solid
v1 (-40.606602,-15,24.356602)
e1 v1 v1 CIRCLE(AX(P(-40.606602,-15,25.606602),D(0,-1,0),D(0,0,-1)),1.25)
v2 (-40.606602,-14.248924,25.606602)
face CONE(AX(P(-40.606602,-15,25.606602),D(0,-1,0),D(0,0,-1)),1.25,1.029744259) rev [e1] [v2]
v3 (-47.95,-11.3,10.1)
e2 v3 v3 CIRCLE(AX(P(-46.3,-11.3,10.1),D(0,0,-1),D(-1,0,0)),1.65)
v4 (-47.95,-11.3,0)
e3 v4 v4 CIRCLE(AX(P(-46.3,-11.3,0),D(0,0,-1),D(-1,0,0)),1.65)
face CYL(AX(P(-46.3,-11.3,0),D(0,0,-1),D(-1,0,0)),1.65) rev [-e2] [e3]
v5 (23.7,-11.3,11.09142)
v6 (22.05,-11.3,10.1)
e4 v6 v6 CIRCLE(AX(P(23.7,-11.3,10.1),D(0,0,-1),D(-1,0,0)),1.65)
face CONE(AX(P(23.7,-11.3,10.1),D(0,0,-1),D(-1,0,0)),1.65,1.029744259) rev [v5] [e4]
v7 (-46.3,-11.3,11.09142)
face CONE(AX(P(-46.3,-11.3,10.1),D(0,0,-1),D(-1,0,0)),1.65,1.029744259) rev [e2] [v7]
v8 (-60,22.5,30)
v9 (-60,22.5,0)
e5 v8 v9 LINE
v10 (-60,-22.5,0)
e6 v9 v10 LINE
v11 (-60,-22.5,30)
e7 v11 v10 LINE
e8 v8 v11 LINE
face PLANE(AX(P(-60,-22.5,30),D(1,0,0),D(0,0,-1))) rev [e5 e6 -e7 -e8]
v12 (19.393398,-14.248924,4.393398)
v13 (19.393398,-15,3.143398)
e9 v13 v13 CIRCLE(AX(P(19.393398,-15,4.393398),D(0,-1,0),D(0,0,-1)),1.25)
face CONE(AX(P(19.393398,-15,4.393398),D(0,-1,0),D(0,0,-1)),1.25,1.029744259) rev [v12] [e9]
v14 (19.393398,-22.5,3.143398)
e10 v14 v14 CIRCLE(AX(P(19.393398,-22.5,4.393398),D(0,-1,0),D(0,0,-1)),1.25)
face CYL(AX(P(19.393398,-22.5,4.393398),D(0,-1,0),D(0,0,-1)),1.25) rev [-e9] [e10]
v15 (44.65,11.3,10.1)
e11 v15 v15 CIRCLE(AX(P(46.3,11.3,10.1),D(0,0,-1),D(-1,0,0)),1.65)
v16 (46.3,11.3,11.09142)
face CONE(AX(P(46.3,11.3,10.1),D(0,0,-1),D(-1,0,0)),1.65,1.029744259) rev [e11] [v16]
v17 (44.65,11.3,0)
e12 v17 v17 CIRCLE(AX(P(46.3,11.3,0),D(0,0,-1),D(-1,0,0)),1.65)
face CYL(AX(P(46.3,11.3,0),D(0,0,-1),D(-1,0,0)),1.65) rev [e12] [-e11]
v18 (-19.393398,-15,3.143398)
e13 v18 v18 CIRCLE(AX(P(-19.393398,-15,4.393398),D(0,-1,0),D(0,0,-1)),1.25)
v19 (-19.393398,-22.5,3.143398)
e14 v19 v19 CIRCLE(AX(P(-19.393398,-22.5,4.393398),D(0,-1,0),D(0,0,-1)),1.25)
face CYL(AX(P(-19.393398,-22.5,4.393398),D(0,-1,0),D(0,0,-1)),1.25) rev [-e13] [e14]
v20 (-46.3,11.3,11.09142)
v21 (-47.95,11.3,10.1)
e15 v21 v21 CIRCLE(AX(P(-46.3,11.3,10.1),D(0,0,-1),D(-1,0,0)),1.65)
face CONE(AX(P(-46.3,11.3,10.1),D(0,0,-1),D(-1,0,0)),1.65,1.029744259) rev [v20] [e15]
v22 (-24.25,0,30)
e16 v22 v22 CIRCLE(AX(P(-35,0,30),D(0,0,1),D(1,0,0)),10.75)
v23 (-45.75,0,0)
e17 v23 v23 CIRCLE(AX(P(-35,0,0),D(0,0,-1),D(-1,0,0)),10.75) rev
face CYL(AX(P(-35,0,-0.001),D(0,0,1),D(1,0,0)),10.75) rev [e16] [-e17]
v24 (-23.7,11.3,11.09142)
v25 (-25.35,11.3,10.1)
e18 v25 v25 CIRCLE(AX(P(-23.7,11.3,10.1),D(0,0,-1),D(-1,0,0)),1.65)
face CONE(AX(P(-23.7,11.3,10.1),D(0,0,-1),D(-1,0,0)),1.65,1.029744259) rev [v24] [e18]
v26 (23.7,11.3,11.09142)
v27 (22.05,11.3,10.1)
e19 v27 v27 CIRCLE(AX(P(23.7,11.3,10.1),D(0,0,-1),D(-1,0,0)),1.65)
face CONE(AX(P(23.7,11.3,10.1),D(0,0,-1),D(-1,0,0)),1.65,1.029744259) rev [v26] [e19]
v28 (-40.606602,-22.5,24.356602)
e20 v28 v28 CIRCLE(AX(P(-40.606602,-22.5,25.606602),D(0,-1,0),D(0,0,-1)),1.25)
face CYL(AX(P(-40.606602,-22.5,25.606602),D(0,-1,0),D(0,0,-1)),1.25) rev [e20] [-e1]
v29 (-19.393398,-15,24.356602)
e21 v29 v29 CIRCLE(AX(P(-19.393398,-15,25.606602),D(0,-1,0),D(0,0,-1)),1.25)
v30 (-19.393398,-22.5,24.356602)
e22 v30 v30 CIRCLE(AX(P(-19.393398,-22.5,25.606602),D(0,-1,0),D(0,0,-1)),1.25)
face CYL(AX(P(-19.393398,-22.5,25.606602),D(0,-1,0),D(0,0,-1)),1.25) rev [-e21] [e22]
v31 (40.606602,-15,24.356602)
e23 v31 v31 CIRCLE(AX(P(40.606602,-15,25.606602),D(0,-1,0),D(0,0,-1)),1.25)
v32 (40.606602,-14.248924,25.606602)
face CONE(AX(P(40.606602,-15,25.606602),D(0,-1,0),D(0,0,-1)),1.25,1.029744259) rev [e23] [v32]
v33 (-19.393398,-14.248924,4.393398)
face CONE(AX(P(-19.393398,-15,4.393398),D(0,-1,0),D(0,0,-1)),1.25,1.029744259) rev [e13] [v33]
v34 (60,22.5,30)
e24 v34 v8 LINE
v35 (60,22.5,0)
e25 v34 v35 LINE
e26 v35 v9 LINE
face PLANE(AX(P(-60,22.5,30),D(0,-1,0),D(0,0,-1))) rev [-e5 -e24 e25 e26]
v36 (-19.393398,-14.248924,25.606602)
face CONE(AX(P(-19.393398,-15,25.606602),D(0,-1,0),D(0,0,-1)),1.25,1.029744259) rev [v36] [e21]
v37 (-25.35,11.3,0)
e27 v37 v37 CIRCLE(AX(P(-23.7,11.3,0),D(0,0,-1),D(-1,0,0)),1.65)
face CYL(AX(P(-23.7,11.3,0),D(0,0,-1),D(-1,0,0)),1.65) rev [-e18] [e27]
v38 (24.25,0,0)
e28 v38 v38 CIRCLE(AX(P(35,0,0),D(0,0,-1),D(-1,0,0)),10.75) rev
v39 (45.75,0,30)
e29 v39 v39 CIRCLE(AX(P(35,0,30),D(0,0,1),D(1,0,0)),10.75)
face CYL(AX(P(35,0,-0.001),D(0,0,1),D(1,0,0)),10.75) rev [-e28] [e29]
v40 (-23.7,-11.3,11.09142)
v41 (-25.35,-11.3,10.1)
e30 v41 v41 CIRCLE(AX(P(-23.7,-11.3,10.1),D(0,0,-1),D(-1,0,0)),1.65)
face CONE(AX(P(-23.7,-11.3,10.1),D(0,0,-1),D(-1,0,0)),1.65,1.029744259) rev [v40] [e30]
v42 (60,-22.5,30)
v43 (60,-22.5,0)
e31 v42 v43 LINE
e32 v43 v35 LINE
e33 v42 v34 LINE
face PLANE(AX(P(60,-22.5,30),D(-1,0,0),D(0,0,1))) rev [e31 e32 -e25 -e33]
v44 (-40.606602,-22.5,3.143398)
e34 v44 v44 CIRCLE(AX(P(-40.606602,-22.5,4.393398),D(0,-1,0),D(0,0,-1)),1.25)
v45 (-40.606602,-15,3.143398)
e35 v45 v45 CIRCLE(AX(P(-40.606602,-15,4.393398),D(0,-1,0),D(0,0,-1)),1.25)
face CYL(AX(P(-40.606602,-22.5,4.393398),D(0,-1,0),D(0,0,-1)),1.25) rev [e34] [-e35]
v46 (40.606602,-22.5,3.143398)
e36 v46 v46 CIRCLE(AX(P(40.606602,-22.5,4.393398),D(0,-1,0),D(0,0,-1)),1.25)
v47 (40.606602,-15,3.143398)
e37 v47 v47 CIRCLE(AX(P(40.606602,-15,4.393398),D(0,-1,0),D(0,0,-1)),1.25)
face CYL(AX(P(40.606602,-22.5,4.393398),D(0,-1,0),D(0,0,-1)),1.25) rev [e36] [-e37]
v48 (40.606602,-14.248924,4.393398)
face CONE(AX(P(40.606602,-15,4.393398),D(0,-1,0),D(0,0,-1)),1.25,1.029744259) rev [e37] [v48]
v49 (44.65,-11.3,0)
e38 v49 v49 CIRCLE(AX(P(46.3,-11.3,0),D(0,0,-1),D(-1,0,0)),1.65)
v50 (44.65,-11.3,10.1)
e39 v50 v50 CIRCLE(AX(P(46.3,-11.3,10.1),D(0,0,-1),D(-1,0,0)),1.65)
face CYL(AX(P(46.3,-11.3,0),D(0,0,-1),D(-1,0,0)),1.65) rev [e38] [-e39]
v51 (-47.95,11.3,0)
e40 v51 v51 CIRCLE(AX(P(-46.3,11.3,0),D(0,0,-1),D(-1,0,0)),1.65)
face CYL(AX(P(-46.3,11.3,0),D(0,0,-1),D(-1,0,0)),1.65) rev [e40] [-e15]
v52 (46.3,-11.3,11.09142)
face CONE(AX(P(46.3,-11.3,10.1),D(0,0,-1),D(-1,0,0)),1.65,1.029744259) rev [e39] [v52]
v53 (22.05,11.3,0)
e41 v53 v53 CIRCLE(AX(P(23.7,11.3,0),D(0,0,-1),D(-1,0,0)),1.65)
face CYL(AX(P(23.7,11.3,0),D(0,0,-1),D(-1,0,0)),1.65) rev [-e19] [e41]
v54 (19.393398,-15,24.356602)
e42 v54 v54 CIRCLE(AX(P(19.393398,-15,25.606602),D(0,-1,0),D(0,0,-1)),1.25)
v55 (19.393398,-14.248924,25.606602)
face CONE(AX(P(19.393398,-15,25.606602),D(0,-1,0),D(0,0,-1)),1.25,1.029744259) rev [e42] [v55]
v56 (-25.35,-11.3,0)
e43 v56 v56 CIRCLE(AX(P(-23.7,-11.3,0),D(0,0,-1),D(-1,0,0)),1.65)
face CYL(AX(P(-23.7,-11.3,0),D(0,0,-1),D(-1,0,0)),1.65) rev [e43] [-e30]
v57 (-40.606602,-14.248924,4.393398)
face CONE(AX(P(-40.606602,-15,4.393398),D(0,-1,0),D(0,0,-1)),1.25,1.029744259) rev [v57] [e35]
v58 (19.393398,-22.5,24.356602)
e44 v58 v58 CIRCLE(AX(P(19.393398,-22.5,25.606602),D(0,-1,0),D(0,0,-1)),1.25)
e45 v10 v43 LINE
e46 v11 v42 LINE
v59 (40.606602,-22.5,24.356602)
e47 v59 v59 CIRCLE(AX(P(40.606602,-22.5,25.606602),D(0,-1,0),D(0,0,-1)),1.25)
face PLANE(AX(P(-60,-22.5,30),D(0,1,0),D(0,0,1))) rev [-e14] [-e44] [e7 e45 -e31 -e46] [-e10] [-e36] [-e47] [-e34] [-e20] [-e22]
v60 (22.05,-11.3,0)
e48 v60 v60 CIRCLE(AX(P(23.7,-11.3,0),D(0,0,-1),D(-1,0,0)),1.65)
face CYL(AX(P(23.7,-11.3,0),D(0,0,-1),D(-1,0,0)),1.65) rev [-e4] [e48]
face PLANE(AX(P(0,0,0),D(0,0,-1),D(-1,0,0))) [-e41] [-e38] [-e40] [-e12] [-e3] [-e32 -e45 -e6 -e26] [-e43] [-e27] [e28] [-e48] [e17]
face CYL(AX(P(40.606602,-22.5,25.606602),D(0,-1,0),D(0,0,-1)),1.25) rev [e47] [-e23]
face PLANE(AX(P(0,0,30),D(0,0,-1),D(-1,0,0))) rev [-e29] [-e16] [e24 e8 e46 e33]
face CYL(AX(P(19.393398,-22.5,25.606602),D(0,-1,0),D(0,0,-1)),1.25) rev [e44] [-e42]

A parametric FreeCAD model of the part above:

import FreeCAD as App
import Part
import Sketcher

V = App.Vector


def add_polygon(sketch, points):
    """Adds a closed chain of lines whose ends are joined by coincident constraints."""
    first, n = sketch.GeometryCount, len(points)
    for a, b in zip(points, points[1:] + points[:1]):
        sketch.addGeometry(Part.LineSegment(App.Vector(*a, 0), App.Vector(*b, 0)), False)
    for i in range(n):
        sketch.addConstraint(Sketcher.Constraint("Coincident", first + i, 2, first + (i + 1) % n, 1))

doc = App.newDocument("Part")
body = doc.addObject("PartDesign::Body", "Body")

sketch1 = body.newObject("Sketcher::SketchObject", "Sketch")
sketch1.AttachmentSupport = (doc.getObject("XY_Plane"), [""])
sketch1.MapMode = "FlatFace"
add_polygon(sketch1, [(-60, 22.5), (-60, -22.5), (60, -22.5), (60, 22.5)])
sketch1.addConstraint([
    Sketcher.Constraint("Vertical", 0),
    Sketcher.Constraint("Horizontal", 1),
    Sketcher.Constraint("Vertical", 2),
    Sketcher.Constraint("Horizontal", 3),
    Sketcher.Constraint("Symmetric", 0, 2, 2, 2, -1, 1),
    Sketcher.Constraint("DistanceX", 1, 1, 1, 2, 120.0),
    Sketcher.Constraint("DistanceY", 0, 2, 0, 1, 45.0),
])
pad1 = body.newObject("PartDesign::Pad", "Pad")
pad1.Profile = sketch1
pad1.Length = 30

sketch2 = body.newObject("Sketcher::SketchObject", "Sketch001")
sketch2.AttachmentSupport = (doc.getObject("XY_Plane"), [""])
sketch2.MapMode = "FlatFace"
sketch2.AttachmentOffset = App.Placement(V(0, 0, 30), App.Rotation())
sketch2.addGeometry(Part.Circle(V(-35, 0, 0), V(0, 0, 1), 10.75), False)
sketch2.addConstraint([
    Sketcher.Constraint("PointOnObject", 0, 3, -1),
    Sketcher.Constraint("Diameter", 0, 21.5),
    Sketcher.Constraint("DistanceX", 0, 3, -1, 1, 35.0),
])
pocket1 = body.newObject("PartDesign::Pocket", "Pocket")
pocket1.Profile = sketch2
pocket1.Type = "UpToFirst"

sketch3 = body.newObject("Sketcher::SketchObject", "Sketch002")
sketch3.AttachmentSupport = (doc.getObject("XY_Plane"), [""])
sketch3.MapMode = "FlatFace"
sketch3.AttachmentOffset = App.Placement(V(0, 0, 30), App.Rotation())
sketch3.addGeometry(Part.Circle(V(35, 0, 0), V(0, 0, 1), 10.75), False)
sketch3.addConstraint([
    Sketcher.Constraint("PointOnObject", 0, 3, -1),
    Sketcher.Constraint("Diameter", 0, 21.5),
    Sketcher.Constraint("DistanceX", -1, 1, 0, 3, 35.0),
])
pocket2 = body.newObject("PartDesign::Pocket", "Pocket001")
pocket2.Profile = sketch3
pocket2.Type = "UpToFirst"

sketch4 = body.newObject("Sketcher::SketchObject", "Sketch003")
sketch4.AttachmentSupport = (doc.getObject("XZ_Plane"), [""])
sketch4.MapMode = "FlatFace"
sketch4.AttachmentOffset = App.Placement(V(0, 0, 22.5), App.Rotation())
sketch4.addGeometry([
    Part.Circle(V(40.606602, 4.393398, 0), V(0, 0, 1), 1.25),
    Part.Circle(V(19.393398, 4.393398, 0), V(0, 0, 1), 1.25),
    Part.Circle(V(19.393398, 25.606602, 0), V(0, 0, 1), 1.25),
    Part.Circle(V(40.606602, 25.606602, 0), V(0, 0, 1), 1.25),
    Part.Circle(V(-19.393398, 4.393398, 0), V(0, 0, 1), 1.25),
    Part.Circle(V(-40.606602, 4.393398, 0), V(0, 0, 1), 1.25),
    Part.Circle(V(-19.393398, 25.606602, 0), V(0, 0, 1), 1.25),
    Part.Circle(V(-40.606602, 25.606602, 0), V(0, 0, 1), 1.25),
], False)
sketch4.addConstraint([
    Sketcher.Constraint("Equal", 0, 1),
    Sketcher.Constraint("Equal", 1, 2),
    Sketcher.Constraint("Equal", 2, 3),
    Sketcher.Constraint("Equal", 3, 4),
    Sketcher.Constraint("Equal", 4, 5),
    Sketcher.Constraint("Equal", 5, 6),
    Sketcher.Constraint("Equal", 6, 7),
    Sketcher.Constraint("Symmetric", 1, 3, 4, 3, -2),
    Sketcher.Constraint("Symmetric", 0, 3, 5, 3, -2),
    Sketcher.Constraint("Symmetric", 2, 3, 6, 3, -2),
    Sketcher.Constraint("Symmetric", 3, 3, 7, 3, -2),
    Sketcher.Constraint("Horizontal", 0, 3, 1, 3),
    Sketcher.Constraint("Horizontal", 2, 3, 3, 3),
    Sketcher.Constraint("Vertical", 1, 3, 2, 3),
    Sketcher.Constraint("Vertical", 0, 3, 3, 3),
    Sketcher.Constraint("Diameter", 0, 2.5),
    Sketcher.Constraint("DistanceX", 4, 3, 0, 3, 60.0),
    Sketcher.Constraint("DistanceX", -1, 1, 0, 3, 40.606602),
    Sketcher.Constraint("DistanceY", -1, 1, 0, 3, 4.393398),
    Sketcher.Constraint("DistanceY", -1, 1, 2, 3, 25.606602),
])
doc.recompute()
hole = body.newObject("PartDesign::Hole", "Hole")
hole.Profile = sketch4
hole.ThreadType = "None"
hole.Diameter = 2.5
hole.DepthType = "Dimension"
hole.Depth = 7.5
hole.DrillPoint = "Angled"
hole.DrillPointAngle = 118

sketch5 = body.newObject("Sketcher::SketchObject", "Sketch004")
sketch5.AttachmentSupport = (doc.getObject("XY_Plane"), [""])
sketch5.MapMode = "FlatFace"
sketch5.addGeometry([
    Part.Circle(V(-46.3, 11.3, 0), V(0, 0, 1), 1.65),
    Part.Circle(V(-46.3, -11.3, 0), V(0, 0, 1), 1.65),
    Part.Circle(V(-23.7, -11.3, 0), V(0, 0, 1), 1.65),
    Part.Circle(V(-23.7, 11.3, 0), V(0, 0, 1), 1.65),
    Part.Circle(V(23.7, 11.3, 0), V(0, 0, 1), 1.65),
    Part.Circle(V(23.7, -11.3, 0), V(0, 0, 1), 1.65),
    Part.Circle(V(46.3, -11.3, 0), V(0, 0, 1), 1.65),
    Part.Circle(V(46.3, 11.3, 0), V(0, 0, 1), 1.65),
], False)
sketch5.addConstraint([
    Sketcher.Constraint("Equal", 0, 1),
    Sketcher.Constraint("Equal", 1, 2),
    Sketcher.Constraint("Equal", 2, 3),
    Sketcher.Constraint("Equal", 3, 4),
    Sketcher.Constraint("Equal", 4, 5),
    Sketcher.Constraint("Equal", 5, 6),
    Sketcher.Constraint("Equal", 6, 7),
    Sketcher.Constraint("Symmetric", 2, 3, 4, 3, -1, 1),
    Sketcher.Constraint("Symmetric", 3, 3, 5, 3, -1, 1),
    Sketcher.Constraint("Symmetric", 0, 3, 6, 3, -1, 1),
    Sketcher.Constraint("Symmetric", 1, 3, 7, 3, -1, 1),
    Sketcher.Constraint("Symmetric", 3, 3, 4, 3, -2),
    Sketcher.Constraint("Symmetric", 1, 3, 6, 3, -2),
    Sketcher.Constraint("Horizontal", 1, 3, 2, 3),
    Sketcher.Constraint("Diameter", 0, 3.3),
    Sketcher.Constraint("DistanceX", 0, 3, 4, 3, 70.0),
    Sketcher.Constraint("DistanceX", 0, 3, -1, 1, 46.3),
    Sketcher.Constraint("DistanceY", -1, 1, 0, 3, 11.3),
])
doc.recompute()
hole2 = body.newObject("PartDesign::Hole", "Hole001")
hole2.Profile = sketch5
hole2.ThreadType = "None"
hole2.Diameter = 3.3
hole2.DepthType = "Dimension"
hole2.Depth = 10.1
hole2.DrillPoint = "Angled"
hole2.DrillPointAngle = 118
hole2.Reversed = True

doc.recompute()
